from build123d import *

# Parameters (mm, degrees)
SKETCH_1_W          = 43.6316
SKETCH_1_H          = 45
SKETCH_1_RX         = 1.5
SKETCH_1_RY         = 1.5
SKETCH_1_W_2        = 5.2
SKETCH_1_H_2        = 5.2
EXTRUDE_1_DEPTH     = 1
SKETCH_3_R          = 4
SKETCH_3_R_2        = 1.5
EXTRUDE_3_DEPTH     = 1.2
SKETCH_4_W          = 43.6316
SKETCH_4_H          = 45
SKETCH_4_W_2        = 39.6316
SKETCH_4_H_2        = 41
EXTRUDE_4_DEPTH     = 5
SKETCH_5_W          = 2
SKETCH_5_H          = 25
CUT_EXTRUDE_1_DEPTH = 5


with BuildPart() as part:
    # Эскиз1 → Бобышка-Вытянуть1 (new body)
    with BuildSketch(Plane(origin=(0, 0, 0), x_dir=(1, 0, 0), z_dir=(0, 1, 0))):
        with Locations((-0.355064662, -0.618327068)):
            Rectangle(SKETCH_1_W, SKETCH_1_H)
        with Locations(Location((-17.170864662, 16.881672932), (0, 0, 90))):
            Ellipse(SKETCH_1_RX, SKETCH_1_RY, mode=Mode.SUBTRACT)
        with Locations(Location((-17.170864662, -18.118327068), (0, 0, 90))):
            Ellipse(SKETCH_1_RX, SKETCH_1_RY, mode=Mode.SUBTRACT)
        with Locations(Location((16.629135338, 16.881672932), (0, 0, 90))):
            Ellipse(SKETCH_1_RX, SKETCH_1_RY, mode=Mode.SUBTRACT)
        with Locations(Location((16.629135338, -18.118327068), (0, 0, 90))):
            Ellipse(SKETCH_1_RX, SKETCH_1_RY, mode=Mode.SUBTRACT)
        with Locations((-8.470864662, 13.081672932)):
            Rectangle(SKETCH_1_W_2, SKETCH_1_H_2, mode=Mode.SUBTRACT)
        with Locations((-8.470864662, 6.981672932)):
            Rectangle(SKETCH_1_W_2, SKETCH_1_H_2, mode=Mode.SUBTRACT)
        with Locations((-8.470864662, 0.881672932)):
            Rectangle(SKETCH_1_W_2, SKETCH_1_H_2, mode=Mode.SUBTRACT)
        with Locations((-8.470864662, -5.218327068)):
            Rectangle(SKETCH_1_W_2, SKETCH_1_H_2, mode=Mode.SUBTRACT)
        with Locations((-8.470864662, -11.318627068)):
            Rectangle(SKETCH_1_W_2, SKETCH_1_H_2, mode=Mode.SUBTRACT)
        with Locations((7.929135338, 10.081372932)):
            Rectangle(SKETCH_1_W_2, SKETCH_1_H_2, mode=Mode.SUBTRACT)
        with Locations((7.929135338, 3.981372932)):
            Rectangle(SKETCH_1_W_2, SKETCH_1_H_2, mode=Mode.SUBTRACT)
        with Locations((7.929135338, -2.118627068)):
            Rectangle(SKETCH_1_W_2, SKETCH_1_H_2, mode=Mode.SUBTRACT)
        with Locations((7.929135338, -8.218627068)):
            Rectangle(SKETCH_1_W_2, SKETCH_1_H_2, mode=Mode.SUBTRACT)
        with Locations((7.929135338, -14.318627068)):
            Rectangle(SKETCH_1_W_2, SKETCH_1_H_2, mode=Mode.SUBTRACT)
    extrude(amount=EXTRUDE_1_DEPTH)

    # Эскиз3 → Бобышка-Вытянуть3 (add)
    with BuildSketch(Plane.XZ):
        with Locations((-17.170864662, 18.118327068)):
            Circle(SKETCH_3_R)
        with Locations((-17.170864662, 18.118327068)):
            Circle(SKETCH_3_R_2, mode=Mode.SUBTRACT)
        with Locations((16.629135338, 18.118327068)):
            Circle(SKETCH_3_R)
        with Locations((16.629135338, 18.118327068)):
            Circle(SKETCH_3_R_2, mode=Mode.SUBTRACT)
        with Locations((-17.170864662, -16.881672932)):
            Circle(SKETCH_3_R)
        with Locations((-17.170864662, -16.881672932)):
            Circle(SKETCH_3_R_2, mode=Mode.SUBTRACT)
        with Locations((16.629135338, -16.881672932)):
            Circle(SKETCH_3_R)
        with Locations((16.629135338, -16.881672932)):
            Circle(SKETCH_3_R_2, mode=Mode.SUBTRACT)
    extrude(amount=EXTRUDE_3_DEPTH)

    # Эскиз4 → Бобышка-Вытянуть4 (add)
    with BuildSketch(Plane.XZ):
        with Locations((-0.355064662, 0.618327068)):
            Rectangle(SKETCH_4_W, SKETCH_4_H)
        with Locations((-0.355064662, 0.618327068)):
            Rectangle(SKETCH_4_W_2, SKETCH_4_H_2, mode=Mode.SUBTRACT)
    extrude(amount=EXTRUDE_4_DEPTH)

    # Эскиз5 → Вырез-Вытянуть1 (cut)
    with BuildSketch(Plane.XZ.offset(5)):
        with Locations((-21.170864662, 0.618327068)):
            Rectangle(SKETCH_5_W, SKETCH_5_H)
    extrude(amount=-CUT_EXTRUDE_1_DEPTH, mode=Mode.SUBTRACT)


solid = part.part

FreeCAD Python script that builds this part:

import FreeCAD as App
import Part
import Sketcher
from FreeCAD import Vector


def add_polygon(sketch, points):
    """Adds a closed chain of lines whose ends are joined by coincident constraints."""
    first, n = sketch.GeometryCount, len(points)
    for a, b in zip(points, points[1:] + points[:1]):
        sketch.addGeometry(Part.LineSegment(App.Vector(*a, 0), App.Vector(*b, 0)), False)
    for i in range(n):
        sketch.addConstraint(Sketcher.Constraint("Coincident", first + i, 2, first + (i + 1) % n, 1))

doc = App.newDocument("Part")
body = doc.addObject("PartDesign::Body", "Body")

# Sketch on XZ plane
sketch1 = doc.addObject("Sketcher::SketchObject", "Sketch")
body.addObject(sketch1)
sketch1.AttachmentSupport = (doc.XZ_Plane, [""])
sketch1.MapMode = "FlatFace"
add_polygon(sketch1, [(-22.170865, -21.881673), (-22.170865, 23.118327), (21.460735, 23.118327), (21.460735, -21.881673)])  # lines 0-3
sketch1.addGeometry(Part.Ellipse(Vector(-17.170865, 16.618327, 0), Vector(-15.670865, 18.118327, 0), Vector(-17.170865, 18.118327, 0)), False)  # 4
add_polygon(sketch1, [(-5.870865, 13.918627), (-11.070865, 13.918627), (-11.070865, 8.718627), (-5.870865, 8.718627)])  # lines 5-8
add_polygon(sketch1, [(-5.870865, 7.818327), (-11.070865, 7.818327), (-11.070865, 2.618327), (-5.870865, 2.618327)])  # lines 9-12
add_polygon(sketch1, [(10.529135, 16.918627), (5.329135, 16.918627), (5.329135, 11.718627), (10.529135, 11.718627)])  # lines 13-16
sketch1.addGeometry(Part.Ellipse(Vector(16.629135, 16.618327, 0), Vector(18.129135, 18.118327, 0), Vector(16.629135, 18.118327, 0)), False)  # 17
add_polygon(sketch1, [(10.529135, 10.818627), (5.329135, 10.818627), (5.329135, 5.618627), (10.529135, 5.618627)])  # lines 18-21
add_polygon(sketch1, [(10.529135, 4.718627), (5.329135, 4.718627), (5.329135, -0.481373), (10.529135, -0.481373)])  # lines 22-25
add_polygon(sketch1, [(-5.870865, 1.718327), (-11.070865, 1.718327), (-11.070865, -3.481673), (-5.870865, -3.481673)])  # lines 26-29
add_polygon(sketch1, [(-5.870865, -4.381673), (-11.070865, -4.381673), (-11.070865, -9.581673), (-5.870865, -9.581673)])  # lines 30-33
sketch1.addGeometry(Part.Ellipse(Vector(-17.170865, -18.381673, 0), Vector(-15.670865, -16.881673, 0), Vector(-17.170865, -16.881673, 0)), False)  # 34
add_polygon(sketch1, [(-5.870865, -10.481673), (-11.070865, -10.481673), (-11.070865, -15.681673), (-5.870865, -15.681673)])  # lines 35-38
add_polygon(sketch1, [(10.529135, -1.381373), (5.329135, -1.381373), (5.329135, -6.581373), (10.529135, -6.581373)])  # lines 39-42
add_polygon(sketch1, [(10.529135, -7.481373), (5.329135, -7.481373), (5.329135, -12.681373), (10.529135, -12.681373)])  # lines 43-46
sketch1.addGeometry(Part.Ellipse(Vector(16.629135, -18.381673, 0), Vector(18.129135, -16.881673, 0), Vector(16.629135, -16.881673, 0)), False)  # 47
sketch1.addConstraint(Sketcher.Constraint("Block", 4))
sketch1.addConstraint(Sketcher.Constraint("Block", 17))
sketch1.addConstraint(Sketcher.Constraint("Block", 34))
sketch1.addConstraint(Sketcher.Constraint("Block", 47))
sketch1.addConstraint(Sketcher.Constraint("Vertical", 0))
sketch1.addConstraint(Sketcher.Constraint("Horizontal", 1))
sketch1.addConstraint(Sketcher.Constraint("Vertical", 2))
sketch1.addConstraint(Sketcher.Constraint("Horizontal", 3))
sketch1.addConstraint(Sketcher.Constraint("Horizontal", 5))
sketch1.addConstraint(Sketcher.Constraint("Vertical", 6))
sketch1.addConstraint(Sketcher.Constraint("Horizontal", 7))
sketch1.addConstraint(Sketcher.Constraint("Vertical", 8))
sketch1.addConstraint(Sketcher.Constraint("Horizontal", 9))
sketch1.addConstraint(Sketcher.Constraint("Vertical", 10))
sketch1.addConstraint(Sketcher.Constraint("Horizontal", 11))
sketch1.addConstraint(Sketcher.Constraint("Vertical", 12))
sketch1.addConstraint(Sketcher.Constraint("Horizontal", 13))
sketch1.addConstraint(Sketcher.Constraint("Vertical", 14))
sketch1.addConstraint(Sketcher.Constraint("Horizontal", 15))
sketch1.addConstraint(Sketcher.Constraint("Vertical", 16))
sketch1.addConstraint(Sketcher.Constraint("Horizontal", 18))
sketch1.addConstraint(Sketcher.Constraint("Vertical", 19))
sketch1.addConstraint(Sketcher.Constraint("Horizontal", 20))
sketch1.addConstraint(Sketcher.Constraint("Vertical", 21))
sketch1.addConstraint(Sketcher.Constraint("Horizontal", 22))
sketch1.addConstraint(Sketcher.Constraint("Vertical", 23))
sketch1.addConstraint(Sketcher.Constraint("Horizontal", 24))
sketch1.addConstraint(Sketcher.Constraint("Vertical", 25))
sketch1.addConstraint(Sketcher.Constraint("Horizontal", 26))
sketch1.addConstraint(Sketcher.Constraint("Vertical", 27))
sketch1.addConstraint(Sketcher.Constraint("Horizontal", 28))
sketch1.addConstraint(Sketcher.Constraint("Vertical", 29))
sketch1.addConstraint(Sketcher.Constraint("Horizontal", 30))
sketch1.addConstraint(Sketcher.Constraint("Vertical", 31))
sketch1.addConstraint(Sketcher.Constraint("Horizontal", 32))
sketch1.addConstraint(Sketcher.Constraint("Vertical", 33))
sketch1.addConstraint(Sketcher.Constraint("Horizontal", 35))
sketch1.addConstraint(Sketcher.Constraint("Vertical", 36))
sketch1.addConstraint(Sketcher.Constraint("Horizontal", 37))
sketch1.addConstraint(Sketcher.Constraint("Vertical", 38))
sketch1.addConstraint(Sketcher.Constraint("Horizontal", 39))
sketch1.addConstraint(Sketcher.Constraint("Vertical", 40))
sketch1.addConstraint(Sketcher.Constraint("Horizontal", 41))
sketch1.addConstraint(Sketcher.Constraint("Vertical", 42))
sketch1.addConstraint(Sketcher.Constraint("Horizontal", 43))
sketch1.addConstraint(Sketcher.Constraint("Vertical", 44))
sketch1.addConstraint(Sketcher.Constraint("Horizontal", 45))
sketch1.addConstraint(Sketcher.Constraint("Vertical", 46))
sketch1.addConstraint(Sketcher.Constraint("Vertical", 6, 2, 9, 2))
sketch1.addConstraint(Sketcher.Constraint("Vertical", 8, 2, 11, 2))
sketch1.addConstraint(Sketcher.Constraint("Vertical", 14, 2, 18, 2))
sketch1.addConstraint(Sketcher.Constraint("Vertical", 16, 2, 20, 2))
sketch1.addConstraint(Sketcher.Constraint("Vertical", 19, 2, 22, 2))
sketch1.addConstraint(Sketcher.Constraint("Vertical", 21, 2, 24, 2))
sketch1.addConstraint(Sketcher.Constraint("Vertical", 10, 2, 26, 2))
sketch1.addConstraint(Sketcher.Constraint("Vertical", 12, 2, 28, 2))
sketch1.addConstraint(Sketcher.Constraint("Vertical", 27, 2, 30, 2))
sketch1.addConstraint(Sketcher.Constraint("Vertical", 29, 2, 32, 2))
sketch1.addConstraint(Sketcher.Constraint("Vertical", 31, 2, 35, 2))
sketch1.addConstraint(Sketcher.Constraint("Vertical", 33, 2, 37, 2))
sketch1.addConstraint(Sketcher.Constraint("Vertical", 23, 2, 39, 2))
sketch1.addConstraint(Sketcher.Constraint("Vertical", 25, 2, 41, 2))
sketch1.addConstraint(Sketcher.Constraint("Vertical", 40, 2, 43, 2))
sketch1.addConstraint(Sketcher.Constraint("Vertical", 42, 2, 45, 2))
sketch1.addConstraint(Sketcher.Constraint("Equal", 11, 13))
sketch1.addConstraint(Sketcher.Constraint("Equal", 45, 6))
sketch1.addConstraint(Sketcher.Constraint("Equal", 8, 10))
sketch1.addConstraint(Sketcher.Constraint("Equal", 12, 14))
sketch1.addConstraint(Sketcher.Constraint("Equal", 16, 19))
sketch1.addConstraint(Sketcher.Constraint("Equal", 21, 23))
sketch1.addConstraint(Sketcher.Constraint("Equal", 25, 27))
sketch1.addConstraint(Sketcher.Constraint("Equal", 29, 31))
sketch1.addConstraint(Sketcher.Constraint("Equal", 33, 36))
sketch1.addConstraint(Sketcher.Constraint("Equal", 38, 40))
sketch1.addConstraint(Sketcher.Constraint("Equal", 42, 44))
sketch1.addConstraint(Sketcher.Constraint("DistanceY", 0, 1, 0, 2, 45.0))
sketch1.addConstraint(Sketcher.Constraint("DistanceX", 5, 2, 5, 1, 5.2))
sketch1.addConstraint(Sketcher.Constraint("DistanceY", 8, 2, 13, 2, 3.0))
sketch1.addConstraint(Sketcher.Constraint("DistanceY", 22, 2, 14, 2, 7.0))
sketch1.addConstraint(Sketcher.Constraint("DistanceY", 30, 2, 10, 2, 7.0))
sketch1.addConstraint(Sketcher.Constraint("DistanceY", 35, 2, 27, 2, 7.0))
sketch1.addConstraint(Sketcher.Constraint("DistanceY", 39, 2, 19, 2, 7.0))
sketch1.addConstraint(Sketcher.Constraint("DistanceY", 43, 2, 23, 2, 7.0))
sketch1.addConstraint(Sketcher.Constraint("DistanceX", 0, 2, 5, 2, 11.1))
sketch1.addConstraint(Sketcher.Constraint("DistanceY", 9, 2, 0, 2, 15.3))
sketch1.addConstraint(Sketcher.Constraint("DistanceX", 8, 2, 13, 2, 11.2))
sketch1.addConstraint(Sketcher.Constraint("DistanceY", 18, 2, 14, 2, 0.9))
sketch1.addConstraint(Sketcher.Constraint("DistanceY", 26, 2, 10, 2, 0.9))
sketch1.addConstraint(Sketcher.Constraint("DistanceX", 1, 1, 1, 2, 43.6316))
sketch1.addConstraint(Sketcher.Constraint("DistanceY", 5, 2, 0, 2, 9.1997))
sketch1.addConstraint(Sketcher.Constraint("DistanceX", 0, 2, -1, 1, 22.170865))
sketch1.addConstraint(Sketcher.Constraint("DistanceY", -1, 1, 0, 2, 23.118327))
pad1 = doc.addObject("PartDesign::Pad", "Pad")
body.addObject(pad1)
pad1.Profile = sketch1
pad1.Length = 1
pad1.Reversed = True

# Sketch on XZ plane
sketch2 = doc.addObject("Sketcher::SketchObject", "Sketch001")
body.addObject(sketch2)
sketch2.AttachmentSupport = (doc.XZ_Plane, [""])
sketch2.MapMode = "FlatFace"
sketch2.addGeometry(Part.Circle(Vector(-17.170865, 18.118327, 0), Vector(0, 0, 1), 4), False)
sketch2.addGeometry(Part.Circle(Vector(-17.170865, 18.118327, 0), Vector(0, 0, 1), 1.5), False)
sketch2.addGeometry(Part.Circle(Vector(16.629135, 18.118327, 0), Vector(0, 0, 1), 4), False)
sketch2.addGeometry(Part.Circle(Vector(16.629135, 18.118327, 0), Vector(0, 0, 1), 1.5), False)
sketch2.addGeometry(Part.Circle(Vector(-17.170865, -16.881673, 0), Vector(0, 0, 1), 4), False)
sketch2.addGeometry(Part.Circle(Vector(-17.170865, -16.881673, 0), Vector(0, 0, 1), 1.5), False)
sketch2.addGeometry(Part.Circle(Vector(16.629135, -16.881673, 0), Vector(0, 0, 1), 4), False)
sketch2.addGeometry(Part.Circle(Vector(16.629135, -16.881673, 0), Vector(0, 0, 1), 1.5), False)
sketch2.addConstraint(Sketcher.Constraint("Coincident", 1, 3, 0, 3))
sketch2.addConstraint(Sketcher.Constraint("Coincident", 3, 3, 2, 3))
sketch2.addConstraint(Sketcher.Constraint("Coincident", 5, 3, 4, 3))
sketch2.addConstraint(Sketcher.Constraint("Coincident", 7, 3, 6, 3))
sketch2.addConstraint(Sketcher.Constraint("Equal", 0, 2))
sketch2.addConstraint(Sketcher.Constraint("Equal", 1, 3))
sketch2.addConstraint(Sketcher.Constraint("Equal", 2, 4))
sketch2.addConstraint(Sketcher.Constraint("Equal", 3, 5))
sketch2.addConstraint(Sketcher.Constraint("Equal", 4, 6))
sketch2.addConstraint(Sketcher.Constraint("Equal", 5, 7))
sketch2.addConstraint(Sketcher.Constraint("Horizontal", 1, 3, 2, 3))
sketch2.addConstraint(Sketcher.Constraint("Horizontal", 5, 3, 6, 3))
sketch2.addConstraint(Sketcher.Constraint("Vertical", 1, 3, 4, 3))
sketch2.addConstraint(Sketcher.Constraint("Vertical", 3, 3, 6, 3))
sketch2.addConstraint(Sketcher.Constraint("Diameter", 0, 8.0))
sketch2.addConstraint(Sketcher.Constraint("Diameter", 1, 3.0))
sketch2.addConstraint(Sketcher.Constraint("DistanceY", 4, 3, 0, 3, 35.0))
sketch2.addConstraint(Sketcher.Constraint("DistanceX", 0, 3, 2, 3, 33.8))
sketch2.addConstraint(Sketcher.Constraint("DistanceX", 0, 3, -1, 1, 17.170865))
sketch2.addConstraint(Sketcher.Constraint("DistanceY", -1, 1, 0, 3, 18.118327))
pad2 = doc.addObject("PartDesign::Pad", "Pad001")
body.addObject(pad2)
pad2.Profile = sketch2
pad2.Length = 1.2

# Sketch on XZ plane
sketch3 = doc.addObject("Sketcher::SketchObject", "Sketch002")
body.addObject(sketch3)
sketch3.AttachmentSupport = (doc.XZ_Plane, [""])
sketch3.MapMode = "FlatFace"
add_polygon(sketch3, [(-22.170865, 23.118327), (-22.170865, -21.881673), (21.460735, -21.881673), (21.460735, 23.118327)])  # lines 0-3
add_polygon(sketch3, [(19.460735, -19.881673), (-20.170865, -19.881673), (-20.170865, 21.118327), (19.460735, 21.118327)])  # lines 4-7
sketch3.addConstraint(Sketcher.Constraint("Vertical", 0))
sketch3.addConstraint(Sketcher.Constraint("Horizontal", 1))
sketch3.addConstraint(Sketcher.Constraint("Vertical", 2))
sketch3.addConstraint(Sketcher.Constraint("Horizontal", 3))
sketch3.addConstraint(Sketcher.Constraint("Horizontal", 4))
sketch3.addConstraint(Sketcher.Constraint("Vertical", 5))
sketch3.addConstraint(Sketcher.Constraint("Horizontal", 6))
sketch3.addConstraint(Sketcher.Constraint("Vertical", 7))
sketch3.addConstraint(Sketcher.Constraint("DistanceY", 0, 2, 0, 1, 45.0))
sketch3.addConstraint(Sketcher.Constraint("DistanceY", 5, 1, 5, 2, 41.0))
sketch3.addConstraint(Sketcher.Constraint("DistanceX", 0, 2, 4, 2, 2.0))
sketch3.addConstraint(Sketcher.Constraint("DistanceY", 0, 2, 4, 2, 2.0))
sketch3.addConstraint(Sketcher.Constraint("DistanceX", 6, 2, 2, 2, 2.0))
sketch3.addConstraint(Sketcher.Constraint("DistanceX", 1, 1, 1, 2, 43.6316))
sketch3.addConstraint(Sketcher.Constraint("DistanceX", 0, 2, -1, 1, 22.170865))
sketch3.addConstraint(Sketcher.Constraint("DistanceY", 0, 2, -1, 1, 21.881673))
pad3 = doc.addObject("PartDesign::Pad", "Pad002")
body.addObject(pad3)
pad3.Profile = sketch3
pad3.Length = 5

# Sketch on XZ plane
sketch4 = doc.addObject("Sketcher::SketchObject", "Sketch003")
body.addObject(sketch4)
sketch4.AttachmentSupport = (doc.XZ_Plane, [""])
sketch4.MapMode = "FlatFace"
sketch4.AttachmentOffset = App.Placement(Vector(0, 0, 5), App.Rotation())
add_polygon(sketch4, [(-22.170865, 13.118327), (-22.170865, -11.881673), (-20.170865, -11.881673), (-20.170865, 13.118327)])  # lines 0-3
sketch4.addConstraint(Sketcher.Constraint("Vertical", 0))
sketch4.addConstraint(Sketcher.Constraint("Horizontal", 1))
sketch4.addConstraint(Sketcher.Constraint("Vertical", 2))
sketch4.addConstraint(Sketcher.Constraint("Horizontal", 3))
sketch4.addConstraint(Sketcher.Constraint("DistanceX", 1, 1, 1, 2, 2.0))
sketch4.addConstraint(Sketcher.Constraint("DistanceY", 0, 2, 0, 1, 25.0))
sketch4.addConstraint(Sketcher.Constraint("DistanceX", 0, 2, -1, 1, 22.170865))
sketch4.addConstraint(Sketcher.Constraint("DistanceY", 0, 2, -1, 1, 11.881673))
pocket1 = doc.addObject("PartDesign::Pocket", "Pocket")
body.addObject(pocket1)
pocket1.Profile = sketch4
pocket1.Length = 5

doc.recompute()
